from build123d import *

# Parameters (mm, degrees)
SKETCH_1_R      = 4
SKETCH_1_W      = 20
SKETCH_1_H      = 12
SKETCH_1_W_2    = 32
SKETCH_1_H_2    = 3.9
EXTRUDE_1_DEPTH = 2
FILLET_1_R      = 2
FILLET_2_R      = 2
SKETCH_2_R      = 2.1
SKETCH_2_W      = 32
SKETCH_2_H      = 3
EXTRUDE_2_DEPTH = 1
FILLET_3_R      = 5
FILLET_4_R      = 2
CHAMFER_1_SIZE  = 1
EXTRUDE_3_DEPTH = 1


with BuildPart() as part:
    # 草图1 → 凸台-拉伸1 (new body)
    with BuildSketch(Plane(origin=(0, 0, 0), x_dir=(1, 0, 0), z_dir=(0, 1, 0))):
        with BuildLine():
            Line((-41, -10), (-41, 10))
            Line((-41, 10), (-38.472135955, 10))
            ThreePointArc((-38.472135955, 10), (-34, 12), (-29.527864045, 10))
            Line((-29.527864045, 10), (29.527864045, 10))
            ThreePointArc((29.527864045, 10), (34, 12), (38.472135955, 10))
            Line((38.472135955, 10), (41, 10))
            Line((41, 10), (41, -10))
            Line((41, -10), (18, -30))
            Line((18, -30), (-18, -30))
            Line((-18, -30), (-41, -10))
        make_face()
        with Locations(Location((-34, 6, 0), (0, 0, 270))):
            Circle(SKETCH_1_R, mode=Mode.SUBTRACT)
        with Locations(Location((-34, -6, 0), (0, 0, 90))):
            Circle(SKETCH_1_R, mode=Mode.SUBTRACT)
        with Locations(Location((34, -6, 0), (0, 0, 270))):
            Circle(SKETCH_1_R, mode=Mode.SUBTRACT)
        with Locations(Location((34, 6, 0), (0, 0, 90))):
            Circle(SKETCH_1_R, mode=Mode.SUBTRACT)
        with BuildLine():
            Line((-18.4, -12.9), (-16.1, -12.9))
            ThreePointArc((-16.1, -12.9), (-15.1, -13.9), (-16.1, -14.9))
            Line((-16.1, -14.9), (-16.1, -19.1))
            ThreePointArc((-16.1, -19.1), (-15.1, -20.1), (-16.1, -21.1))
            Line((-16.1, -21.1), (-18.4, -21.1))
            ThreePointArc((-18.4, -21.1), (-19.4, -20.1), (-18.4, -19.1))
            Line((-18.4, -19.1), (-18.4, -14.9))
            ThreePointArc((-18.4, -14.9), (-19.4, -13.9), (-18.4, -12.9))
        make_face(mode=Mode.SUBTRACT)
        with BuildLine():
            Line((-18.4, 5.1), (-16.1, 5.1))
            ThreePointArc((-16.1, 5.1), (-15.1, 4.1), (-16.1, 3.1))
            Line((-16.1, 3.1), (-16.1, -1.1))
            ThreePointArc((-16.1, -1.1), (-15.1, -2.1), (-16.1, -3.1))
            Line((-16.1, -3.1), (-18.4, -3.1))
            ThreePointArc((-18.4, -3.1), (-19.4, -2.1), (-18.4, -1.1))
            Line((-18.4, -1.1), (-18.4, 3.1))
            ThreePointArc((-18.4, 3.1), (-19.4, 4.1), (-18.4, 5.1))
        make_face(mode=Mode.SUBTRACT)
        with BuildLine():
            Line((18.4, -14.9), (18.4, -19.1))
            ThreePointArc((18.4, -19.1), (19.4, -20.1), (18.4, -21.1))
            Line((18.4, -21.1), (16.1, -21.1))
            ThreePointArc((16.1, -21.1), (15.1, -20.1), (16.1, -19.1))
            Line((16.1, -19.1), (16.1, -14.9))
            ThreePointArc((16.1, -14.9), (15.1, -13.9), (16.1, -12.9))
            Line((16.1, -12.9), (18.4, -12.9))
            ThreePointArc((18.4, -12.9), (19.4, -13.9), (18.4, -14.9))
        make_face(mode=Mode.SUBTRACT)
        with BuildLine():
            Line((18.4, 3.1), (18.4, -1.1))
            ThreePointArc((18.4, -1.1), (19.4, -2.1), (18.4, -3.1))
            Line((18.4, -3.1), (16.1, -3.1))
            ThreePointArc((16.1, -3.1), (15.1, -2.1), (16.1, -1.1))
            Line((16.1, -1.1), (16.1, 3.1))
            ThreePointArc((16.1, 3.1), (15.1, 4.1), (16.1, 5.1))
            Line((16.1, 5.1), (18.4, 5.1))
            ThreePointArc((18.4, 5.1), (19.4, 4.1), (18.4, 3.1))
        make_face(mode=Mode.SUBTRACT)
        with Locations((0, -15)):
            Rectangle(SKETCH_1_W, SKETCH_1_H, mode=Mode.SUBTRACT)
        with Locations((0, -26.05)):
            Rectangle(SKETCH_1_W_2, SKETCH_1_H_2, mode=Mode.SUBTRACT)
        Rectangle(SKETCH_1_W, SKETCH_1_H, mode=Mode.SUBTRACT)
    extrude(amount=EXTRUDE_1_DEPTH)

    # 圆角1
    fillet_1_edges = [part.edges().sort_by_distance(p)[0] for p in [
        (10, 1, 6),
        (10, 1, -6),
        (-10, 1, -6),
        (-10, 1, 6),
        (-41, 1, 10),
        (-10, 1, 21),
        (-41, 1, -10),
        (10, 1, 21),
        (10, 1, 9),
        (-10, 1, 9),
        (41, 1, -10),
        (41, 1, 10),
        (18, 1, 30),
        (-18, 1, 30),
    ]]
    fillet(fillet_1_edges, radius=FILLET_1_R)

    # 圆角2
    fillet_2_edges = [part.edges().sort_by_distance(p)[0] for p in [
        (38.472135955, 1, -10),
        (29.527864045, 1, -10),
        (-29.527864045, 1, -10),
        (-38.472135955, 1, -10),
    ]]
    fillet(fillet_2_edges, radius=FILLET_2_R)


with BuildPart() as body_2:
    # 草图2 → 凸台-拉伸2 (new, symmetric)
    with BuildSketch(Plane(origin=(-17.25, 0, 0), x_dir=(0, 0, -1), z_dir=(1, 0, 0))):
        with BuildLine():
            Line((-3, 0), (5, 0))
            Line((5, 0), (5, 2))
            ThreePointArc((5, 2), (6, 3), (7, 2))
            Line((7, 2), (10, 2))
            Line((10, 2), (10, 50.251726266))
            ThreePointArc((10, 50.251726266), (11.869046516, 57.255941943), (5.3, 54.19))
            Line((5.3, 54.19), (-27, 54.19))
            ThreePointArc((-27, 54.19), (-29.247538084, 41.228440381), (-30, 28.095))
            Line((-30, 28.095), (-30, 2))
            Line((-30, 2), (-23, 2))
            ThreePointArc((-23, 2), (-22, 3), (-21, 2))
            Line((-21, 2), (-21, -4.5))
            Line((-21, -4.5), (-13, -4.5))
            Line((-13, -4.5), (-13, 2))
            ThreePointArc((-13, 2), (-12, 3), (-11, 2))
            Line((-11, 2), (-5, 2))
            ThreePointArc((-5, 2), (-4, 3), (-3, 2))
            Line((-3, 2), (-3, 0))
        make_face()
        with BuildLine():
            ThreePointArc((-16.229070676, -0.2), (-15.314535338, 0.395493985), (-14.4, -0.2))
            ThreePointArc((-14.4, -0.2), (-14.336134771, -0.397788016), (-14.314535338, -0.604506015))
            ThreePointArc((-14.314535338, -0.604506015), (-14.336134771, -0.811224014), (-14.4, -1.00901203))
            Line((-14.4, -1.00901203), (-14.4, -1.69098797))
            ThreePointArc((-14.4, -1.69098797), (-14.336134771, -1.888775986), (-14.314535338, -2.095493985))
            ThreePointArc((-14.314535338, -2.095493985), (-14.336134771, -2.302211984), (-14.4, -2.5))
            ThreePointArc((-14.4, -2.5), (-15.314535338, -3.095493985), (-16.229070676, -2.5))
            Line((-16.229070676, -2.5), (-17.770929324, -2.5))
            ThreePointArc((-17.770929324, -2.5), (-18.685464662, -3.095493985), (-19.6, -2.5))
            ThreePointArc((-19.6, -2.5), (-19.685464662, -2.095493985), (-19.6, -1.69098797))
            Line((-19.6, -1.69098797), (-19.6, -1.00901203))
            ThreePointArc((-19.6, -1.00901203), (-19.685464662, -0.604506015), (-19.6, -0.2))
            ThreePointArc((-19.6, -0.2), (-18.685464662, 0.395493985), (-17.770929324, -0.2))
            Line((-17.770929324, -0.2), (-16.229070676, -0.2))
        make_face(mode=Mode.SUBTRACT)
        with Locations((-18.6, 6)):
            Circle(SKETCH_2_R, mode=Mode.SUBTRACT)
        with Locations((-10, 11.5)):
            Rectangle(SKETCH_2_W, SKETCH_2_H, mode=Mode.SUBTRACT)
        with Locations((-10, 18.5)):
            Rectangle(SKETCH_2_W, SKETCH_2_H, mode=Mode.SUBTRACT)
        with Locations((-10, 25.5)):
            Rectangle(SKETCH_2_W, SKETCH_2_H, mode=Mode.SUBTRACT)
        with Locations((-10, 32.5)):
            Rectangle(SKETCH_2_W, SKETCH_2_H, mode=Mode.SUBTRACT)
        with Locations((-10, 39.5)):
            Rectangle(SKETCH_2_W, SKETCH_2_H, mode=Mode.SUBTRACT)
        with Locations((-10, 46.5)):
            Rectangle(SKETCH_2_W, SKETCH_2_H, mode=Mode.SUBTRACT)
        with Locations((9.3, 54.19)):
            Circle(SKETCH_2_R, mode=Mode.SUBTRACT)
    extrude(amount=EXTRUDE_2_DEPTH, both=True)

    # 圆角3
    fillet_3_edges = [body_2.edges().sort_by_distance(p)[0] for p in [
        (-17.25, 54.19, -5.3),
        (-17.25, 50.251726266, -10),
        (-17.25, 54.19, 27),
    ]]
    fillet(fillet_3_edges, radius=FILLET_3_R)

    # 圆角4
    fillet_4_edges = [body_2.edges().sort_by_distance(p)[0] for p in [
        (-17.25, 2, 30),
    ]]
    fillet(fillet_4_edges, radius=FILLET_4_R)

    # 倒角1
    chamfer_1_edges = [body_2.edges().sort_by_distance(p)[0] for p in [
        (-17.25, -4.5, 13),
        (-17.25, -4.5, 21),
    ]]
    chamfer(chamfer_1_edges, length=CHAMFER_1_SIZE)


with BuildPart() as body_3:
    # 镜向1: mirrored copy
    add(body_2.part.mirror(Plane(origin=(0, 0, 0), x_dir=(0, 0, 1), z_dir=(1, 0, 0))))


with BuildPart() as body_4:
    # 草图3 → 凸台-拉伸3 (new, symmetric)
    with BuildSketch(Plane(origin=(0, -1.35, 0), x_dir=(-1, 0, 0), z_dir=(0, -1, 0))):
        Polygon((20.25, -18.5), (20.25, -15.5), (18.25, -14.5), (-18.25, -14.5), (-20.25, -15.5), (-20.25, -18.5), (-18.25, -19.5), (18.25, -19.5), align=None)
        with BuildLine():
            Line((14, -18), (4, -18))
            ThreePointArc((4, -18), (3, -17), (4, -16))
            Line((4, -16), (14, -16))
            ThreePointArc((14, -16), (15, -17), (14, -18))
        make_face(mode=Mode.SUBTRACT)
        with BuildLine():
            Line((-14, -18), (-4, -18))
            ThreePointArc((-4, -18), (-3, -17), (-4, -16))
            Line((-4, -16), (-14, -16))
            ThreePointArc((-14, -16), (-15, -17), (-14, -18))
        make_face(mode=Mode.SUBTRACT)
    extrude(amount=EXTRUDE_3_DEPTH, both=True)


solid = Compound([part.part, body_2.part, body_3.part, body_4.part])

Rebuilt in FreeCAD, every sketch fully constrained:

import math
import FreeCAD as App
import Part
import Sketcher
from FreeCAD import Vector
Q = App.Units.Quantity


def edges_at(feature, points):
    """Names of the edges that pass closest to the given points."""
    edges = feature.Shape.Edges
    near = lambda p: min(range(len(edges)), key=lambda i: edges[i].distToShape(Part.Vertex(*p))[0])
    return sorted({f"Edge{near(p) + 1}" for p in points})


def add_polygon(sketch, points):
    """Adds a closed chain of lines whose ends are joined by coincident constraints."""
    first, n = sketch.GeometryCount, len(points)
    for a, b in zip(points, points[1:] + points[:1]):
        sketch.addGeometry(Part.LineSegment(App.Vector(*a, 0), App.Vector(*b, 0)), False)
    for i in range(n):
        sketch.addConstraint(Sketcher.Constraint("Coincident", first + i, 2, first + (i + 1) % n, 1))

doc = App.newDocument("Part")
body = doc.addObject("PartDesign::Body", "Body")

# Sketch on XZ plane
sketch1 = doc.addObject("Sketcher::SketchObject", "Sketch")
body.addObject(sketch1)
sketch1.AttachmentSupport = (doc.XZ_Plane, [""])
sketch1.MapMode = "FlatFace"
sketch1.addGeometry(Part.LineSegment(Vector(-41, -10, 0), Vector(-41, 10, 0)), False)  # 0
sketch1.addGeometry(Part.LineSegment(Vector(-41, 10, 0), Vector(-18, 30, 0)), False)  # 1
sketch1.addGeometry(Part.LineSegment(Vector(-18, 30, 0), Vector(18, 30, 0)), False)  # 2
sketch1.addGeometry(Part.LineSegment(Vector(18, 30, 0), Vector(41, 10, 0)), False)  # 3
sketch1.addGeometry(Part.LineSegment(Vector(41, 10, 0), Vector(41, -10, 0)), False)  # 4
sketch1.addGeometry(Part.LineSegment(Vector(41, -10, 0), Vector(38.5, -10, 0)), False)  # 5
sketch1.addGeometry(Part.ArcOfCircle(Part.Circle(Vector(34, -6, 0), Vector(0, 0, 1), 6), math.radians(-138), math.radians(-42)), False)  # 6
sketch1.addGeometry(Part.LineSegment(Vector(29.5, -10, 0), Vector(-29.5, -10, 0)), False)  # 7
sketch1.addGeometry(Part.ArcOfCircle(Part.Circle(Vector(-34, -6, 0), Vector(0, 0, 1), 6), math.radians(-138), math.radians(-42)), False)  # 8
sketch1.addGeometry(Part.LineSegment(Vector(-38.5, -10, 0), Vector(-41, -10, 0)), False)  # 9
sketch1.addGeometry(Part.LineSegment(Vector(18.4, 14.9, 0), Vector(18.4, 19.1, 0)), False)  # 10
sketch1.addGeometry(Part.ArcOfCircle(Part.Circle(Vector(18.4, 20.1, 0), Vector(0, 0, 1), 1), math.radians(-90), math.radians(90)), False)  # 11
sketch1.addGeometry(Part.LineSegment(Vector(18.4, 21.1, 0), Vector(16.1, 21.1, 0)), False)  # 12
sketch1.addGeometry(Part.ArcOfCircle(Part.Circle(Vector(16.1, 20.1, 0), Vector(0, 0, 1), 1), math.radians(90), math.radians(270)), False)  # 13
sketch1.addGeometry(Part.LineSegment(Vector(16.1, 19.1, 0), Vector(16.1, 14.9, 0)), False)  # 14
sketch1.addGeometry(Part.ArcOfCircle(Part.Circle(Vector(16.1, 13.9, 0), Vector(0, 0, 1), 1), math.radians(90), math.radians(270)), False)  # 15
sketch1.addGeometry(Part.LineSegment(Vector(16.1, 12.9, 0), Vector(18.4, 12.9, 0)), False)  # 16
sketch1.addGeometry(Part.ArcOfCircle(Part.Circle(Vector(18.4, 13.9, 0), Vector(0, 0, 1), 1), math.radians(-90), math.radians(90)), False)  # 17
add_polygon(sketch1, [(-16, 28), (-16, 24.1), (16, 24.1), (16, 28)])  # lines 18-21
add_polygon(sketch1, [(-10, 21), (-10, 9), (10, 9), (10, 21)])  # lines 22-25
sketch1.addGeometry(Part.LineSegment(Vector(-18.4, 12.9, 0), Vector(-16.1, 12.9, 0)), False)  # 26
sketch1.addGeometry(Part.ArcOfCircle(Part.Circle(Vector(-16.1, 13.9, 0), Vector(0, 0, 1), 1), math.radians(-90), math.radians(90)), False)  # 27
sketch1.addGeometry(Part.LineSegment(Vector(-16.1, 14.9, 0), Vector(-16.1, 19.1, 0)), False)  # 28
sketch1.addGeometry(Part.ArcOfCircle(Part.Circle(Vector(-16.1, 20.1, 0), Vector(0, 0, 1), 1), math.radians(-90), math.radians(90)), False)  # 29
sketch1.addGeometry(Part.LineSegment(Vector(-16.1, 21.1, 0), Vector(-18.4, 21.1, 0)), False)  # 30
sketch1.addGeometry(Part.ArcOfCircle(Part.Circle(Vector(-18.4, 20.1, 0), Vector(0, 0, 1), 1), math.radians(90), math.radians(270)), False)  # 31
sketch1.addGeometry(Part.LineSegment(Vector(-18.4, 19.1, 0), Vector(-18.4, 14.9, 0)), False)  # 32
sketch1.addGeometry(Part.ArcOfCircle(Part.Circle(Vector(-18.4, 13.9, 0), Vector(0, 0, 1), 1), math.radians(90), math.radians(270)), False)  # 33
sketch1.addGeometry(Part.Circle(Vector(34, 6, 0), Vector(0, 0, 1), 4), False)  # 34
sketch1.addGeometry(Part.Circle(Vector(34, -6, 0), Vector(0, 0, 1), 4), False)  # 35
sketch1.addGeometry(Part.LineSegment(Vector(18.4, -3.1, 0), Vector(18.4, 1.1, 0)), False)  # 36
sketch1.addGeometry(Part.ArcOfCircle(Part.Circle(Vector(18.4, 2.1, 0), Vector(0, 0, 1), 1), math.radians(-90), math.radians(90)), False)  # 37
sketch1.addGeometry(Part.LineSegment(Vector(18.4, 3.1, 0), Vector(16.1, 3.1, 0)), False)  # 38
sketch1.addGeometry(Part.ArcOfCircle(Part.Circle(Vector(16.1, 2.1, 0), Vector(0, 0, 1), 1), math.radians(90), math.radians(270)), False)  # 39
sketch1.addGeometry(Part.LineSegment(Vector(16.1, 1.1, 0), Vector(16.1, -3.1, 0)), False)  # 40
sketch1.addGeometry(Part.ArcOfCircle(Part.Circle(Vector(16.1, -4.1, 0), Vector(0, 0, 1), 1), math.radians(90), math.radians(270)), False)  # 41
sketch1.addGeometry(Part.LineSegment(Vector(16.1, -5.1, 0), Vector(18.4, -5.1, 0)), False)  # 42
sketch1.addGeometry(Part.ArcOfCircle(Part.Circle(Vector(18.4, -4.1, 0), Vector(0, 0, 1), 1), math.radians(-90), math.radians(90)), False)  # 43
add_polygon(sketch1, [(-10, 6), (-10, -6), (10, -6), (10, 6)])  # lines 44-47
sketch1.addGeometry(Part.Circle(Vector(-34, 6, 0), Vector(0, 0, 1), 4), False)  # 48
sketch1.addGeometry(Part.LineSegment(Vector(-18.4, -5.1, 0), Vector(-16.1, -5.1, 0)), False)  # 49
sketch1.addGeometry(Part.ArcOfCircle(Part.Circle(Vector(-16.1, -4.1, 0), Vector(0, 0, 1), 1), math.radians(-90), math.radians(90)), False)  # 50
sketch1.addGeometry(Part.LineSegment(Vector(-16.1, -3.1, 0), Vector(-16.1, 1.1, 0)), False)  # 51
sketch1.addGeometry(Part.ArcOfCircle(Part.Circle(Vector(-16.1, 2.1, 0), Vector(0, 0, 1), 1), math.radians(-90), math.radians(90)), False)  # 52
sketch1.addGeometry(Part.LineSegment(Vector(-16.1, 3.1, 0), Vector(-18.4, 3.1, 0)), False)  # 53
sketch1.addGeometry(Part.ArcOfCircle(Part.Circle(Vector(-18.4, 2.1, 0), Vector(0, 0, 1), 1), math.radians(90), math.radians(270)), False)  # 54
sketch1.addGeometry(Part.LineSegment(Vector(-18.4, 1.1, 0), Vector(-18.4, -3.1, 0)), False)  # 55
sketch1.addGeometry(Part.ArcOfCircle(Part.Circle(Vector(-18.4, -4.1, 0), Vector(0, 0, 1), 1), math.radians(90), math.radians(270)), False)  # 56
sketch1.addGeometry(Part.Circle(Vector(-34, -6, 0), Vector(0, 0, 1), 4), False)  # 57
sketch1.addConstraint([
    Sketcher.Constraint("Coincident", 0, 2, 1, 1),
    Sketcher.Constraint("Coincident", 1, 2, 2, 1),
    Sketcher.Constraint("Coincident", 2, 2, 3, 1),
    Sketcher.Constraint("Coincident", 3, 2, 4, 1),
    Sketcher.Constraint("Coincident", 4, 2, 5, 1),
    Sketcher.Constraint("Coincident", 5, 2, 6, 2),
    Sketcher.Constraint("Coincident", 6, 1, 7, 1),
    Sketcher.Constraint("Coincident", 7, 2, 8, 2),
    Sketcher.Constraint("Coincident", 8, 1, 9, 1),
    Sketcher.Constraint("Coincident", 9, 2, 0, 1),
    Sketcher.Constraint("Coincident", 10, 2, 11, 1),
    Sketcher.Constraint("Tangent", 11, 2, 12, 1),
    Sketcher.Constraint("Tangent", 12, 2, 13, 1),
    Sketcher.Constraint("Coincident", 13, 2, 14, 1),
    Sketcher.Constraint("Coincident", 14, 2, 15, 1),
    Sketcher.Constraint("Tangent", 15, 2, 16, 1),
    Sketcher.Constraint("Tangent", 16, 2, 17, 1),
    Sketcher.Constraint("Coincident", 17, 2, 10, 1),
    Sketcher.Constraint("Tangent", 26, 2, 27, 1),
    Sketcher.Constraint("Coincident", 27, 2, 28, 1),
    Sketcher.Constraint("Coincident", 28, 2, 29, 1),
    Sketcher.Constraint("Tangent", 29, 2, 30, 1),
    Sketcher.Constraint("Tangent", 30, 2, 31, 1),
    Sketcher.Constraint("Coincident", 31, 2, 32, 1),
    Sketcher.Constraint("Coincident", 32, 2, 33, 1),
    Sketcher.Constraint("Tangent", 33, 2, 26, 1),
    Sketcher.Constraint("Coincident", 36, 2, 37, 1),
    Sketcher.Constraint("Tangent", 37, 2, 38, 1),
    Sketcher.Constraint("Tangent", 38, 2, 39, 1),
    Sketcher.Constraint("Coincident", 39, 2, 40, 1),
    Sketcher.Constraint("Coincident", 40, 2, 41, 1),
    Sketcher.Constraint("Tangent", 41, 2, 42, 1),
    Sketcher.Constraint("Tangent", 42, 2, 43, 1),
    Sketcher.Constraint("Coincident", 43, 2, 36, 1),
    Sketcher.Constraint("Tangent", 49, 2, 50, 1),
    Sketcher.Constraint("Coincident", 50, 2, 51, 1),
    Sketcher.Constraint("Coincident", 51, 2, 52, 1),
    Sketcher.Constraint("Tangent", 52, 2, 53, 1),
    Sketcher.Constraint("Tangent", 53, 2, 54, 1),
    Sketcher.Constraint("Coincident", 54, 2, 55, 1),
    Sketcher.Constraint("Coincident", 55, 2, 56, 1),
    Sketcher.Constraint("Tangent", 56, 2, 49, 1),
    Sketcher.Constraint("Vertical", 0),
    Sketcher.Constraint("Horizontal", 2),
    Sketcher.Constraint("Vertical", 4),
    Sketcher.Constraint("Horizontal", 5),
    Sketcher.Constraint("Horizontal", 7),
    Sketcher.Constraint("Horizontal", 9),
    Sketcher.Constraint("Vertical", 10),
    Sketcher.Constraint("Horizontal", 12),
    Sketcher.Constraint("Vertical", 14),
    Sketcher.Constraint("Horizontal", 16),
    Sketcher.Constraint("Vertical", 18),
    Sketcher.Constraint("Horizontal", 19),
    Sketcher.Constraint("Vertical", 20),
    Sketcher.Constraint("Horizontal", 21),
    Sketcher.Constraint("Vertical", 22),
    Sketcher.Constraint("Horizontal", 23),
    Sketcher.Constraint("Vertical", 24),
    Sketcher.Constraint("Horizontal", 25),
    Sketcher.Constraint("Horizontal", 26),
    Sketcher.Constraint("Vertical", 28),
    Sketcher.Constraint("Horizontal", 30),
    Sketcher.Constraint("Vertical", 32),
    Sketcher.Constraint("Vertical", 36),
    Sketcher.Constraint("Horizontal", 38),
    Sketcher.Constraint("Vertical", 40),
    Sketcher.Constraint("Horizontal", 42),
    Sketcher.Constraint("Vertical", 44),
    Sketcher.Constraint("Horizontal", 45),
    Sketcher.Constraint("Vertical", 46),
    Sketcher.Constraint("Horizontal", 47),
    Sketcher.Constraint("Horizontal", 49),
    Sketcher.Constraint("Vertical", 51),
    Sketcher.Constraint("Horizontal", 53),
    Sketcher.Constraint("Vertical", 55),
    Sketcher.Constraint("Coincident", 35, 3, 6, 3),
    Sketcher.Constraint("Coincident", 57, 3, 8, 3),
    Sketcher.Constraint("Equal", 6, 8),
    Sketcher.Constraint("Equal", 11, 13),
    Sketcher.Constraint("Equal", 13, 15),
    Sketcher.Constraint("Equal", 15, 17),
    Sketcher.Constraint("Equal", 17, 27),
    Sketcher.Constraint("Equal", 27, 29),
    Sketcher.Constraint("Equal", 29, 31),
    Sketcher.Constraint("Equal", 31, 33),
    Sketcher.Constraint("Equal", 34, 35),
    Sketcher.Constraint("Equal", 33, 37),
    Sketcher.Constraint("Equal", 37, 39),
    Sketcher.Constraint("Equal", 39, 41),
    Sketcher.Constraint("Equal", 41, 43),
    Sketcher.Constraint("Equal", 35, 48),
    Sketcher.Constraint("Equal", 43, 50),
    Sketcher.Constraint("Equal", 50, 52),
    Sketcher.Constraint("Equal", 52, 54),
    Sketcher.Constraint("Equal", 54, 56),
    Sketcher.Constraint("Equal", 48, 57),
    Sketcher.Constraint("Symmetric", 8, 3, 34, 3, -1, 1),
    Sketcher.Constraint("Symmetric", 6, 3, 48, 3, -1, 1),
    Sketcher.Constraint("Symmetric", 0, 2, 4, 2, -1, 1),
    Sketcher.Constraint("Symmetric", 44, 2, 46, 2, -1, 1),
    Sketcher.Constraint("Symmetric", 38, 2, 50, 2, -1, 1),
    Sketcher.Constraint("Symmetric", 40, 2, 52, 2, -1, 1),
    Sketcher.Constraint("Symmetric", 6, 3, 8, 3, -2),
    Sketcher.Constraint("Symmetric", 15, 3, 27, 3, -2),
    Sketcher.Constraint("Symmetric", 13, 3, 29, 3, -2),
    Sketcher.Constraint("Symmetric", 41, 3, 50, 3, -2),
    Sketcher.Constraint("Horizontal", 0, 2, 3, 2),
    Sketcher.Constraint("Horizontal", 5, 2, 6, 1),
    Sketcher.Constraint("Horizontal", 7, 2, 8, 1),
    Sketcher.Constraint("Horizontal", 57, 3, 44, 2),
    Sketcher.Constraint("Vertical", 13, 3, 15, 3),
    Sketcher.Constraint("Vertical", 11, 3, 17, 3),
    Sketcher.Constraint("Vertical", 31, 3, 33, 3),
    Sketcher.Constraint("Vertical", 17, 3, 37, 3),
    Sketcher.Constraint("Vertical", 15, 3, 39, 3),
    Sketcher.Constraint("Vertical", 39, 3, 41, 3),
    Sketcher.Constraint("Vertical", 37, 3, 43, 3),
    Sketcher.Constraint("Vertical", 50, 3, 52, 3),
    Sketcher.Constraint("Vertical", 33, 3, 54, 3),
    Sketcher.Constraint("Vertical", 54, 3, 56, 3),
    Sketcher.Constraint("Vertical", 43, 3, 10, 2),
    Sketcher.Constraint("Vertical", 12, 2, 13, 2),
    Sketcher.Constraint("Vertical", 26, 2, 27, 2),
    Sketcher.Constraint("Vertical", 30, 2, 31, 2),
    Sketcher.Constraint("Vertical", 17, 2, 36, 2),
    Sketcher.Constraint("Vertical", 25, 2, 44, 2),
    Sketcher.Constraint("Vertical", 24, 2, 45, 2),
    Sketcher.Constraint("Vertical", 53, 2, 54, 2),
    Sketcher.Constraint("Equal", 16, 26),
    Sketcher.Constraint("Equal", 47, 0),
    Sketcher.Constraint("Equal", 32, 36),
    Sketcher.Constraint("Equal", 24, 44),
    Sketcher.Constraint("Equal", 1, 3),
    Sketcher.Constraint("Diameter", 34, Q("8 mm")),
    Sketcher.Constraint("Radius", 6, Q("6 mm")),
    Sketcher.Constraint("Radius", 11, Q("1 mm")),
    Sketcher.Constraint("DistanceX", 2, 1, 2, 2, Q("36 mm")),
    Sketcher.Constraint("DistanceX", 19, 1, 19, 2, Q("32 mm")),
    Sketcher.Constraint("DistanceX", 23, 1, 23, 2, Q("20 mm")),
    Sketcher.Constraint("DistanceY", 22, 2, 22, 1, Q("12 mm")),
    Sketcher.Constraint("DistanceX", 12, 2, 12, 1, Q("2.3 mm")),
    Sketcher.Constraint("DistanceY", 10, 1, 10, 2, Q("4.2 mm")),
    Sketcher.Constraint("DistanceY", 18, 2, 18, 1, Q("3.9 mm")),
    Sketcher.Constraint("DistanceX", -1, 1, 6, 3, Q("34 mm")),
    Sketcher.Constraint("DistanceX", 0, 2, -1, 1, Q("41 mm")),
    Sketcher.Constraint("DistanceY", -1, 1, 1, 2, Q("30 mm")),
    Sketcher.Constraint("DistanceX", 18, 2, -1, 1, Q("16 mm")),
    Sketcher.Constraint("DistanceY", -1, 1, 20, 2, Q("28 mm")),
    Sketcher.Constraint("DistanceY", -1, 1, 22, 2, Q("9 mm")),
    Sketcher.Constraint("DistanceX", -1, 1, 11, 3, Q("18.4 mm")),
    Sketcher.Constraint("DistanceY", -1, 1, 11, 3, Q("20.1 mm")),
])
pad1 = doc.addObject("PartDesign::Pad", "Pad")
body.addObject(pad1)
pad1.Profile = sketch1
pad1.Length = 2
pad1.Reversed = True
doc.recompute()

fillet = doc.addObject("PartDesign::Fillet", "Fillet")
body.addObject(fillet)
fillet.Base = (pad1, edges_at(pad1, [
    (10, 1, 6),
    (10, 1, -6),
    (-10, 1, -6),
    (-10, 1, 6),
    (-41, 1, 10),
    (-10, 1, 21),
    (-41, 1, -10),
    (10, 1, 21),
    (10, 1, 9),
    (-10, 1, 9),
    (41, 1, -10),
    (41, 1, 10),
    (18, 1, 30),
    (-18, 1, 30),
]))
fillet.Radius = 2
doc.recompute()

fillet2 = doc.addObject("PartDesign::Fillet", "Fillet001")
body.addObject(fillet2)
fillet2.Base = (fillet, edges_at(fillet, [
    (38.472, 1, -10),
    (29.528, 1, -10),
    (-29.528, 1, -10),
    (-38.472, 1, -10),
]))
fillet2.Radius = 2
body2 = doc.addObject("PartDesign::Body", "Body001")

# Sketch on YZ plane
sketch2 = doc.addObject("Sketcher::SketchObject", "Sketch001")
body2.addObject(sketch2)
sketch2.AttachmentSupport = (doc.getObject("YZ_Plane001"), [""])
sketch2.MapMode = "FlatFace"
sketch2.AttachmentOffset = App.Placement(Vector(0, 0, -17.25), App.Rotation())
sketch2.addGeometry(Part.LineSegment(Vector(0, 3, 0), Vector(0, -5, 0)), False)  # 0
sketch2.addGeometry(Part.LineSegment(Vector(0, -5, 0), Vector(2, -5, 0)), False)  # 1
sketch2.addGeometry(Part.ArcOfCircle(Part.Circle(Vector(2, -6, 0), Vector(0, 0, 1), 1), math.radians(-90), math.radians(90)), False)  # 2
sketch2.addGeometry(Part.LineSegment(Vector(2, -7, 0), Vector(2, -10, 0)), False)  # 3
sketch2.addGeometry(Part.LineSegment(Vector(2, -10, 0), Vector(50.25, -10, 0)), False)  # 4
sketch2.addGeometry(Part.ArcOfCircle(Part.Circle(Vector(54.19, -9.3, 0), Vector(0, 0, 1), 4), math.radians(-170), math.radians(90)), False)  # 5
sketch2.addGeometry(Part.LineSegment(Vector(54.19, -5.3, 0), Vector(54.19, 27, 0)), False)  # 6
sketch2.addGeometry(Part.ArcOfCircle(Part.Circle(Vector(28.1, -84.99, 0), Vector(0, 0, 1), 114.99), math.radians(76.88), math.radians(90)), False)  # 7
sketch2.addGeometry(Part.LineSegment(Vector(28.09, 30, 0), Vector(2, 30, 0)), False)  # 8
sketch2.addGeometry(Part.LineSegment(Vector(2, 30, 0), Vector(2, 23, 0)), False)  # 9
sketch2.addGeometry(Part.ArcOfCircle(Part.Circle(Vector(2, 22, 0), Vector(0, 0, 1), 1), math.radians(-90), math.radians(90)), False)  # 10
sketch2.addGeometry(Part.LineSegment(Vector(2, 21, 0), Vector(-4.5, 21, 0)), False)  # 11
sketch2.addGeometry(Part.LineSegment(Vector(-4.5, 21, 0), Vector(-4.5, 13, 0)), False)  # 12
sketch2.addGeometry(Part.LineSegment(Vector(-4.5, 13, 0), Vector(2, 13, 0)), False)  # 13
sketch2.addGeometry(Part.ArcOfCircle(Part.Circle(Vector(2, 12, 0), Vector(0, 0, 1), 1), math.radians(-90), math.radians(90)), False)  # 14
sketch2.addGeometry(Part.LineSegment(Vector(2, 11, 0), Vector(2, 5, 0)), False)  # 15
sketch2.addGeometry(Part.ArcOfCircle(Part.Circle(Vector(2, 4, 0), Vector(0, 0, 1), 1), math.radians(-90), math.radians(90)), False)  # 16
sketch2.addGeometry(Part.LineSegment(Vector(2, 3, 0), Vector(0, 3, 0)), False)  # 17
sketch2.addGeometry(Part.LineSegment(Vector(-0.2, 17.77, 0), Vector(-0.2, 16.23, 0)), False)  # 18
sketch2.addGeometry(Part.ArcOfCircle(Part.Circle(Vector(-0.6, 15.31, 0), Vector(0, 0, 1), 1), math.radians(-66), math.radians(66)), False)  # 19
sketch2.addGeometry(Part.ArcOfCircle(Part.Circle(Vector(-0.6, 15.31, 0), Vector(0, 0, 1), 1), math.radians(-90), math.radians(-66)), False)  # 20
sketch2.addGeometry(Part.ArcOfCircle(Part.Circle(Vector(-0.6, 15.31, 0), Vector(0, 0, 1), 1), math.radians(-114), math.radians(-90)), False)  # 21
sketch2.addGeometry(Part.LineSegment(Vector(-1.01, 14.4, 0), Vector(-1.69, 14.4, 0)), False)  # 22
sketch2.addGeometry(Part.ArcOfCircle(Part.Circle(Vector(-2.1, 15.31, 0), Vector(0, 0, 1), 1), math.radians(-90), math.radians(-66)), False)  # 23
sketch2.addGeometry(Part.ArcOfCircle(Part.Circle(Vector(-2.1, 15.31, 0), Vector(0, 0, 1), 1), math.radians(-114), math.radians(-90)), False)  # 24
sketch2.addGeometry(Part.ArcOfCircle(Part.Circle(Vector(-2.1, 15.31, 0), Vector(0, 0, 1), 1), math.radians(114), math.radians(246)), False)  # 25
sketch2.addGeometry(Part.LineSegment(Vector(-2.5, 16.23, 0), Vector(-2.5, 17.77, 0)), False)  # 26
sketch2.addGeometry(Part.ArcOfCircle(Part.Circle(Vector(-2.1, 18.69, 0), Vector(0, 0, 1), 1), math.radians(114), math.radians(246)), False)  # 27
sketch2.addGeometry(Part.ArcOfCircle(Part.Circle(Vector(-2.1, 18.69, 0), Vector(0, 0, 1), 1), math.radians(66), math.radians(114)), False)  # 28
sketch2.addGeometry(Part.LineSegment(Vector(-1.69, 19.6, 0), Vector(-1.01, 19.6, 0)), False)  # 29
sketch2.addGeometry(Part.ArcOfCircle(Part.Circle(Vector(-0.6, 18.69, 0), Vector(0, 0, 1), 1), math.radians(66), math.radians(114)), False)  # 30
sketch2.addGeometry(Part.ArcOfCircle(Part.Circle(Vector(-0.6, 18.69, 0), Vector(0, 0, 1), 1), math.radians(-66), math.radians(66)), False)  # 31
sketch2.addGeometry(Part.Circle(Vector(6, 18.6, 0), Vector(0, 0, 1), 2.1), False)  # 32
add_polygon(sketch2, [(10, -6), (10, 26), (13, 26), (13, -6)])  # lines 33-36
add_polygon(sketch2, [(17, -6), (17, 26), (20, 26), (20, -6)])  # lines 37-40
add_polygon(sketch2, [(24, -6), (24, 26), (27, 26), (27, -6)])  # lines 41-44
add_polygon(sketch2, [(31, -6), (31, 26), (34, 26), (34, -6)])  # lines 45-48
add_polygon(sketch2, [(38, -6), (38, 26), (41, 26), (41, -6)])  # lines 49-52
add_polygon(sketch2, [(45, -6), (45, 26), (48, 26), (48, -6)])  # lines 53-56
sketch2.addGeometry(Part.Circle(Vector(54.19, -9.3, 0), Vector(0, 0, 1), 2.1), False)  # 57
sketch2.addConstraint([
    Sketcher.Constraint("Coincident", 0, 2, 1, 1),
    Sketcher.Constraint("Tangent", 1, 2, 2, 2),
    Sketcher.Constraint("Coincident", 2, 1, 3, 1),
    Sketcher.Constraint("Coincident", 3, 2, 4, 1),
    Sketcher.Constraint("Coincident", 4, 2, 5, 1),
    Sketcher.Constraint("Coincident", 5, 2, 6, 1),
    Sketcher.Constraint("Coincident", 6, 2, 7, 1),
    Sketcher.Constraint("Tangent", 7, 2, 8, 1),
    Sketcher.Constraint("Coincident", 8, 2, 9, 1),
    Sketcher.Constraint("Coincident", 9, 2, 10, 2),
    Sketcher.Constraint("Tangent", 10, 1, 11, 1),
    Sketcher.Constraint("Coincident", 11, 2, 12, 1),
    Sketcher.Constraint("Coincident", 12, 2, 13, 1),
    Sketcher.Constraint("Tangent", 13, 2, 14, 2),
    Sketcher.Constraint("Coincident", 14, 1, 15, 1),
    Sketcher.Constraint("Coincident", 15, 2, 16, 2),
    Sketcher.Constraint("Tangent", 16, 1, 17, 1),
    Sketcher.Constraint("Coincident", 17, 2, 0, 1),
    Sketcher.Constraint("Coincident", 18, 2, 19, 2),
    Sketcher.Constraint("Tangent", 19, 1, 20, 2),
    Sketcher.Constraint("Tangent", 20, 1, 21, 2),
    Sketcher.Constraint("Coincident", 21, 1, 22, 1),
    Sketcher.Constraint("Coincident", 22, 2, 23, 2),
    Sketcher.Constraint("Tangent", 23, 1, 24, 2),
    Sketcher.Constraint("Tangent", 24, 1, 25, 2),
    Sketcher.Constraint("Coincident", 25, 1, 26, 1),
    Sketcher.Constraint("Coincident", 26, 2, 27, 2),
    Sketcher.Constraint("Tangent", 27, 1, 28, 2),
    Sketcher.Constraint("Coincident", 28, 1, 29, 1),
    Sketcher.Constraint("Coincident", 29, 2, 30, 2),
    Sketcher.Constraint("Tangent", 30, 1, 31, 2),
    Sketcher.Constraint("Coincident", 31, 1, 18, 1),
    Sketcher.Constraint("Vertical", 0),
    Sketcher.Constraint("Horizontal", 1),
    Sketcher.Constraint("Vertical", 3),
    Sketcher.Constraint("Horizontal", 4),
    Sketcher.Constraint("Vertical", 6),
    Sketcher.Constraint("Horizontal", 8),
    Sketcher.Constraint("Vertical", 9),
    Sketcher.Constraint("Horizontal", 11),
    Sketcher.Constraint("Vertical", 12),
    Sketcher.Constraint("Horizontal", 13),
    Sketcher.Constraint("Vertical", 15),
    Sketcher.Constraint("Horizontal", 17),
    Sketcher.Constraint("Vertical", 18),
    Sketcher.Constraint("Horizontal", 22),
    Sketcher.Constraint("Vertical", 26),
    Sketcher.Constraint("Horizontal", 29),
    Sketcher.Constraint("Vertical", 33),
    Sketcher.Constraint("Horizontal", 34),
    Sketcher.Constraint("Vertical", 35),
    Sketcher.Constraint("Horizontal", 36),
    Sketcher.Constraint("Vertical", 37),
    Sketcher.Constraint("Horizontal", 38),
    Sketcher.Constraint("Vertical", 39),
    Sketcher.Constraint("Horizontal", 40),
    Sketcher.Constraint("Vertical", 41),
    Sketcher.Constraint("Horizontal", 42),
    Sketcher.Constraint("Vertical", 43),
    Sketcher.Constraint("Horizontal", 44),
    Sketcher.Constraint("Vertical", 45),
    Sketcher.Constraint("Horizontal", 46),
    Sketcher.Constraint("Vertical", 47),
    Sketcher.Constraint("Horizontal", 48),
    Sketcher.Constraint("Vertical", 49),
    Sketcher.Constraint("Horizontal", 50),
    Sketcher.Constraint("Vertical", 51),
    Sketcher.Constraint("Horizontal", 52),
    Sketcher.Constraint("Vertical", 53),
    Sketcher.Constraint("Horizontal", 54),
    Sketcher.Constraint("Vertical", 55),
    Sketcher.Constraint("Horizontal", 56),
    Sketcher.Constraint("Coincident", 21, 3, 19, 3),
    Sketcher.Constraint("Coincident", 25, 3, 23, 3),
    Sketcher.Constraint("Coincident", 57, 3, 5, 3),
    Sketcher.Constraint("Equal", 2, 10),
    Sketcher.Constraint("Equal", 10, 14),
    Sketcher.Constraint("Equal", 14, 16),
    Sketcher.Constraint("Equal", 16, 19),
    Sketcher.Constraint("Equal", 21, 23),
    Sketcher.Constraint("Equal", 25, 27),
    Sketcher.Constraint("Equal", 27, 28),
    Sketcher.Constraint("Equal", 28, 30),
    Sketcher.Constraint("Equal", 30, 31),
    Sketcher.Constraint("Equal", 32, 57),
    Sketcher.Constraint("Symmetric", 1, 2, 15, 2, -1),
    Sketcher.Constraint("PointOnObject", 0, 2, -2),
    Sketcher.Constraint("Horizontal", 21, 3, 23, 3),
    Sketcher.Constraint("Horizontal", 28, 3, 30, 3),
    Sketcher.Constraint("Horizontal", 19, 1, 21, 1),
    Sketcher.Constraint("Horizontal", 22, 2, 24, 1),
    Sketcher.Constraint("Horizontal", 18, 2, 25, 1),
    Sketcher.Constraint("Horizontal", 27, 1, 28, 1),
    Sketcher.Constraint("Horizontal", 29, 2, 30, 1),
    Sketcher.Constraint("Horizontal", 26, 2, 31, 1),
    Sketcher.Constraint("Horizontal", 2, 3, 35, 2),
    Sketcher.Constraint("Horizontal", 34, 2, 37, 2),
    Sketcher.Constraint("Horizontal", 36, 2, 39, 2),
    Sketcher.Constraint("Horizontal", 38, 2, 41, 2),
    Sketcher.Constraint("Horizontal", 40, 2, 43, 2),
    Sketcher.Constraint("Horizontal", 42, 2, 45, 2),
    Sketcher.Constraint("Horizontal", 44, 2, 47, 2),
    Sketcher.Constraint("Horizontal", 46, 2, 49, 2),
    Sketcher.Constraint("Horizontal", 48, 2, 51, 2),
    Sketcher.Constraint("Horizontal", 50, 2, 53, 2),
    Sketcher.Constraint("Horizontal", 52, 2, 55, 2),
    Sketcher.Constraint("Vertical", 2, 3, 10, 3),
    Sketcher.Constraint("Vertical", 10, 3, 14, 3),
    Sketcher.Constraint("Vertical", 14, 3, 16, 3),
    Sketcher.Constraint("Vertical", 25, 3, 27, 3),
    Sketcher.Constraint("Vertical", 1, 2, 2, 1),
    Sketcher.Constraint("Vertical", 57, 3, 5, 2),
    Sketcher.Constraint("Vertical", 3, 2, 8, 2),
    Sketcher.Constraint("Vertical", 18, 2, 19, 1),
    Sketcher.Constraint("Vertical", 31, 3, 20, 1),
    Sketcher.Constraint("Vertical", 28, 3, 23, 1),
    Sketcher.Constraint("Vertical", 26, 2, 27, 1),
    Sketcher.Constraint("Equal", 36, 38),
    Sketcher.Constraint("Equal", 40, 42),
    Sketcher.Constraint("Equal", 44, 46),
    Sketcher.Constraint("Equal", 48, 50),
    Sketcher.Constraint("Equal", 52, 54),
    Sketcher.Constraint("Equal", 56, 3),
    Sketcher.Constraint("Equal", 0, 12),
    Sketcher.Constraint("Radius", 2, Q("1 mm")),
    Sketcher.Constraint("Radius", 5, Q("4 mm")),
    Sketcher.Constraint("Diameter", 32, Q("4.2 mm")),
    Sketcher.Constraint("DistanceX", 1, 1, 1, 2, Q("2 mm")),
    Sketcher.Constraint("DistanceX", 34, 1, 34, 2, Q("3 mm")),
    Sketcher.Constraint("DistanceY", 0, 2, 0, 1, Q("8 mm")),
    Sketcher.Constraint("DistanceY", 9, 2, 9, 1, Q("7 mm")),
    Sketcher.Constraint("DistanceY", 15, 2, 15, 1, Q("6 mm")),
    Sketcher.Constraint("DistanceY", 33, 1, 33, 2, Q("32 mm")),
    Sketcher.Constraint("DistanceX", 11, 2, 11, 1, Q("6.5 mm")),
    Sketcher.Constraint("DistanceY", 6, 1, 6, 2, Q("32.3 mm")),
    Sketcher.Constraint("DistanceX", -1, 1, 32, 3, Q("6 mm")),
    Sketcher.Constraint("DistanceY", -1, 1, 6, 2, Q("27 mm")),
    Sketcher.Constraint("DistanceX", -1, 1, 33, 2, Q("10 mm")),
    Sketcher.Constraint("DistanceX", -1, 1, 37, 2, Q("17 mm")),
    Sketcher.Constraint("DistanceX", -1, 1, 41, 2, Q("24 mm")),
    Sketcher.Constraint("DistanceX", -1, 1, 45, 2, Q("31 mm")),
    Sketcher.Constraint("DistanceX", -1, 1, 49, 2, Q("38 mm")),
    Sketcher.Constraint("DistanceX", -1, 1, 53, 2, Q("45 mm")),
    Sketcher.Constraint("DistanceY", -1, 1, 32, 3, Q("18.6 mm")),
    Sketcher.Constraint("DistanceX", 18, 2, -1, 1, Q("0.2 mm")),
    Sketcher.Constraint("DistanceY", -1, 1, 19, 1, Q("14.4 mm")),
    Sketcher.Constraint("DistanceX", 24, 1, -1, 1, Q("2.5 mm")),
    Sketcher.Constraint("DistanceY", -1, 1, 27, 1, Q("19.6 mm")),
    Sketcher.Constraint("DistanceX", 8, 2, 8, 1, Q("26.095 mm")),
    Sketcher.Constraint("DistanceX", -1, 1, 5, 3, Q("54.19 mm")),
    Sketcher.Constraint("DistanceY", 18, 2, 18, 1, Q("1.541859 mm")),
])
pad2 = doc.addObject("PartDesign::Pad", "Pad001")
body2.addObject(pad2)
pad2.Profile = sketch2
pad2.Length = 2
pad2.Midplane = True
doc.recompute()

fillet3 = doc.addObject("PartDesign::Fillet", "Fillet002")
body2.addObject(fillet3)
fillet3.Base = (pad2, edges_at(pad2, [(-17.25, 54.19, -5.3), (-17.25, 50.252, -10), (-17.25, 54.19, 27)]))
fillet3.Radius = 5
doc.recompute()

fillet4 = doc.addObject("PartDesign::Fillet", "Fillet003")
body2.addObject(fillet4)
fillet4.Base = (fillet3, edges_at(fillet3, [(-17.25, 2, 30)]))
fillet4.Radius = 2
doc.recompute()

chamfer = doc.addObject("PartDesign::Chamfer", "Chamfer")
body2.addObject(chamfer)
chamfer.Base = (fillet4, edges_at(fillet4, [(-17.25, -4.5, 13), (-17.25, -4.5, 21)]))
chamfer.Size = 1
body3 = doc.addObject("PartDesign::Body", "Body002")
doc.recompute()

mirroring = doc.addObject("Part::Mirroring", "Mirroring")
mirroring.Source = body2
mirroring.Base = Vector(0, 0, 0)
mirroring.Normal = Vector(1, 0, 0)
body3.BaseFeature = mirroring
doc.recompute()
body4 = doc.addObject("PartDesign::Body", "Body003")

# Sketch on XZ plane
sketch3 = doc.addObject("Sketcher::SketchObject", "Sketch002")
body4.addObject(sketch3)
sketch3.AttachmentSupport = (doc.getObject("XZ_Plane003"), [""])
sketch3.MapMode = "FlatFace"
sketch3.AttachmentOffset = App.Placement(Vector(0, 0, 1.35), App.Rotation())
add_polygon(sketch3, [(-20.2, 18.5), (-20.2, 15.5), (-18.2, 14.5), (18.2, 14.5), (20.2, 15.5), (20.2, 18.5), (18.2, 19.5), (-18.2, 19.5)])  # lines 0-7
sketch3.addGeometry(Part.LineSegment(Vector(4, 18, 0), Vector(14, 18, 0)), False)  # 8
sketch3.addGeometry(Part.ArcOfCircle(Part.Circle(Vector(14, 17, 0), Vector(0, 0, 1), 1), math.radians(-90), math.radians(90)), False)  # 9
sketch3.addGeometry(Part.LineSegment(Vector(14, 16, 0), Vector(4, 16, 0)), False)  # 10
sketch3.addGeometry(Part.ArcOfCircle(Part.Circle(Vector(4, 17, 0), Vector(0, 0, 1), 1), math.radians(90), math.radians(270)), False)  # 11
sketch3.addGeometry(Part.ArcOfCircle(Part.Circle(Vector(-14, 17, 0), Vector(0, 0, 1), 1), math.radians(90), math.radians(270)), False)  # 12
sketch3.addGeometry(Part.LineSegment(Vector(-14, 18, 0), Vector(-4, 18, 0)), False)  # 13
sketch3.addGeometry(Part.ArcOfCircle(Part.Circle(Vector(-4, 17, 0), Vector(0, 0, 1), 1), math.radians(-90), math.radians(90)), False)  # 14
sketch3.addGeometry(Part.LineSegment(Vector(-4, 16, 0), Vector(-14, 16, 0)), False)  # 15
sketch3.addConstraint([
    Sketcher.Constraint("Tangent", 8, 2, 9, 2),
    Sketcher.Constraint("Tangent", 9, 1, 10, 1),
    Sketcher.Constraint("Tangent", 10, 2, 11, 2),
    Sketcher.Constraint("Tangent", 11, 1, 8, 1),
    Sketcher.Constraint("Tangent", 12, 1, 13, 1),
    Sketcher.Constraint("Tangent", 13, 2, 14, 2),
    Sketcher.Constraint("Tangent", 14, 1, 15, 1),
    Sketcher.Constraint("Tangent", 15, 2, 12, 2),
    Sketcher.Constraint("Vertical", 0),
    Sketcher.Constraint("Horizontal", 2),
    Sketcher.Constraint("Vertical", 4),
    Sketcher.Constraint("Horizontal", 6),
    Sketcher.Constraint("Horizontal", 8),
    Sketcher.Constraint("Horizontal", 10),
    Sketcher.Constraint("Horizontal", 13),
    Sketcher.Constraint("Horizontal", 15),
    Sketcher.Constraint("Equal", 11, 12),
    Sketcher.Constraint("Symmetric", 9, 3, 12, 3, -2),
    Sketcher.Constraint("Symmetric", 0, 2, 3, 2, -2),
    Sketcher.Constraint("Parallel", 1, 5),
    Sketcher.Constraint("Parallel", 3, 7),
    Sketcher.Constraint("Horizontal", 4, 2, 7, 2),
    Sketcher.Constraint("Vertical", 2, 2, 5, 2),
    Sketcher.Constraint("Vertical", 1, 2, 6, 2),
    Sketcher.Constraint("Equal", 10, 13),
    Sketcher.Constraint("Radius", 9, Q("1 mm")),
    Sketcher.Constraint("DistanceX", 8, 1, 8, 2, Q("10 mm")),
    Sketcher.Constraint("DistanceY", 0, 2, 0, 1, Q("3 mm")),
    Sketcher.Constraint("DistanceX", 2, 1, 2, 2, Q("36.5 mm")),
    Sketcher.Constraint("DistanceX", -1, 1, 9, 3, Q("14 mm")),
    Sketcher.Constraint("DistanceY", -1, 1, 9, 3, Q("17 mm")),
    Sketcher.Constraint("DistanceX", 0, 2, 1, 2, Q("2 mm")),
    Sketcher.Constraint("DistanceY", 1, 2, 0, 2, Q("1 mm")),
    Sketcher.Constraint("DistanceY", -1, 1, 0, 2, Q("15.5 mm")),
])
pad3 = doc.addObject("PartDesign::Pad", "Pad002")
body4.addObject(pad3)
pad3.Profile = sketch3
pad3.Length = 2
pad3.Midplane = True
mirroring.Visibility = False

doc.recompute()
